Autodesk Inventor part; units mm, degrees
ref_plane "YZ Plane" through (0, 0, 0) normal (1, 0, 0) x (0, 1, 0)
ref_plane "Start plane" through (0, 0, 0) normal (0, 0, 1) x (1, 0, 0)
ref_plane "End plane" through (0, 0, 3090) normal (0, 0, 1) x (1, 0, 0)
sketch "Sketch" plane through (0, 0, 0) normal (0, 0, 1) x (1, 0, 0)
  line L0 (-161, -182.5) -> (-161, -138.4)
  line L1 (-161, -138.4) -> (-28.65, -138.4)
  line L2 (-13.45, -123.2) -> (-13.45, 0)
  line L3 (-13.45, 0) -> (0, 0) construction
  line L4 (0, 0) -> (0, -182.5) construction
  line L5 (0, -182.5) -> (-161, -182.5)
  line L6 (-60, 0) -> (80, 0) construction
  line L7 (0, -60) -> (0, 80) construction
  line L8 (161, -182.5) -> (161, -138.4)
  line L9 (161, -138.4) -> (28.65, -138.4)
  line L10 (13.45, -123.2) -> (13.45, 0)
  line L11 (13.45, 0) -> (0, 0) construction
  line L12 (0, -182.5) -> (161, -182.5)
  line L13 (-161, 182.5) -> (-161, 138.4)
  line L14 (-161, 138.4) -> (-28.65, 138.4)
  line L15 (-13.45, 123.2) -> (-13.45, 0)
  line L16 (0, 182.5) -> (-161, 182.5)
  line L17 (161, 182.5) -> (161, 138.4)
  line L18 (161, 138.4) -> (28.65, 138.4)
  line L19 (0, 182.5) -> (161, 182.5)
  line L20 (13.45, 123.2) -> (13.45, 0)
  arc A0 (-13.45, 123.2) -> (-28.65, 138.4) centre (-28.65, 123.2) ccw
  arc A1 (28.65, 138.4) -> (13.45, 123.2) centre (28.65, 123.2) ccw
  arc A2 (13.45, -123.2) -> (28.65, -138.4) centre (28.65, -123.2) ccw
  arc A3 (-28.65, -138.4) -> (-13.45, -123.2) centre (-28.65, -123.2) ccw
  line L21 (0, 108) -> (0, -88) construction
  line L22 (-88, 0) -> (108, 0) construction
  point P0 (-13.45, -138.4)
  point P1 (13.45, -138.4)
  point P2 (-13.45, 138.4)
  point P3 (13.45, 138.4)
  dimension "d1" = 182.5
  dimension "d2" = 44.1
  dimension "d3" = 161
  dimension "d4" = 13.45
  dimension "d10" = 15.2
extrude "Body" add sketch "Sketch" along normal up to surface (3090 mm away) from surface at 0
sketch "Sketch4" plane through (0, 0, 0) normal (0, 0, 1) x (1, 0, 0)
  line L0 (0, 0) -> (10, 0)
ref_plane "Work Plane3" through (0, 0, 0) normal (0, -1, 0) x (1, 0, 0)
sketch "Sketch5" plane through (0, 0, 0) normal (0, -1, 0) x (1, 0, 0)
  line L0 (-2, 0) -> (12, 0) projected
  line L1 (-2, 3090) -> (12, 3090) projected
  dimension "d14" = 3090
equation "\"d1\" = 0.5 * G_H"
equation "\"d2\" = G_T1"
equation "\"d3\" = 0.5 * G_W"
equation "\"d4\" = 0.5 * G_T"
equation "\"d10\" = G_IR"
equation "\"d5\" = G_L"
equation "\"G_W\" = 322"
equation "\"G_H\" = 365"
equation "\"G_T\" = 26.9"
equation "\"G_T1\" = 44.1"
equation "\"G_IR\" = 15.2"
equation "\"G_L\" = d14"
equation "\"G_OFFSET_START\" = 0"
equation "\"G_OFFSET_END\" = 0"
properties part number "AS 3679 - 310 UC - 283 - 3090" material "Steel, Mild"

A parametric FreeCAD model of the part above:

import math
import FreeCAD as App
import Part
import Sketcher

V = App.Vector

doc = App.newDocument("Part")
body = doc.addObject("PartDesign::Body", "Body")

# Sketch on XY plane
sketch1 = body.newObject("Sketcher::SketchObject", "Sketch")
sketch1.AttachmentSupport = (doc.getObject("XY_Plane"), [""])
sketch1.MapMode = "FlatFace"
sketch1.addGeometry(Part.LineSegment(V(-161, -138, 0), V(-161, -182, 0)), False)
sketch1.addGeometry(Part.LineSegment(V(-161, -182, 0), V(161, -182, 0)), False)
sketch1.addGeometry(Part.LineSegment(V(161, -182, 0), V(161, -138, 0)), False)
sketch1.addGeometry(Part.LineSegment(V(161, -138, 0), V(29, -138, 0)), False)
sketch1.addGeometry(Part.ArcOfCircle(Part.Circle(V(29, -123, 0), V(0, 0, 1), 15), math.radians(180), math.radians(270)), False)
sketch1.addGeometry(Part.LineSegment(V(13, -123, 0), V(13, 123, 0)), False)
sketch1.addGeometry(Part.ArcOfCircle(Part.Circle(V(29, 123, 0), V(0, 0, 1), 15), math.radians(90), math.radians(180)), False)
sketch1.addGeometry(Part.LineSegment(V(29, 138, 0), V(161, 138, 0)), False)
sketch1.addGeometry(Part.LineSegment(V(161, 138, 0), V(161, 182, 0)), False)
sketch1.addGeometry(Part.LineSegment(V(161, 182, 0), V(-161, 182, 0)), False)
sketch1.addGeometry(Part.LineSegment(V(-161, 182, 0), V(-161, 138, 0)), False)
sketch1.addGeometry(Part.LineSegment(V(-161, 138, 0), V(-29, 138, 0)), False)
sketch1.addGeometry(Part.ArcOfCircle(Part.Circle(V(-29, 123, 0), V(0, 0, 1), 15), math.radians(0), math.radians(90)), False)
sketch1.addGeometry(Part.LineSegment(V(-13, 123, 0), V(-13, -123, 0)), False)
sketch1.addGeometry(Part.ArcOfCircle(Part.Circle(V(-29, -123, 0), V(0, 0, 1), 15), math.radians(-90), math.radians(0)), False)
sketch1.addGeometry(Part.LineSegment(V(-29, -138, 0), V(-161, -138, 0)), False)
sketch1.addConstraint(Sketcher.Constraint("Coincident", 0, 2, 1, 1))
sketch1.addConstraint(Sketcher.Constraint("Coincident", 1, 2, 2, 1))
sketch1.addConstraint(Sketcher.Constraint("Coincident", 2, 2, 3, 1))
sketch1.addConstraint(Sketcher.Constraint("Tangent", 3, 2, 4, 2))
sketch1.addConstraint(Sketcher.Constraint("Tangent", 4, 1, 5, 1))
sketch1.addConstraint(Sketcher.Constraint("Tangent", 5, 2, 6, 2))
sketch1.addConstraint(Sketcher.Constraint("Tangent", 6, 1, 7, 1))
sketch1.addConstraint(Sketcher.Constraint("Coincident", 7, 2, 8, 1))
sketch1.addConstraint(Sketcher.Constraint("Coincident", 8, 2, 9, 1))
sketch1.addConstraint(Sketcher.Constraint("Coincident", 9, 2, 10, 1))
sketch1.addConstraint(Sketcher.Constraint("Coincident", 10, 2, 11, 1))
sketch1.addConstraint(Sketcher.Constraint("Tangent", 11, 2, 12, 2))
sketch1.addConstraint(Sketcher.Constraint("Tangent", 12, 1, 13, 1))
sketch1.addConstraint(Sketcher.Constraint("Tangent", 13, 2, 14, 2))
sketch1.addConstraint(Sketcher.Constraint("Tangent", 14, 1, 15, 1))
sketch1.addConstraint(Sketcher.Constraint("Coincident", 15, 2, 0, 1))
sketch1.addConstraint(Sketcher.Constraint("Vertical", 0))
sketch1.addConstraint(Sketcher.Constraint("Horizontal", 1))
sketch1.addConstraint(Sketcher.Constraint("Vertical", 2))
sketch1.addConstraint(Sketcher.Constraint("Horizontal", 3))
sketch1.addConstraint(Sketcher.Constraint("Vertical", 5))
sketch1.addConstraint(Sketcher.Constraint("Horizontal", 7))
sketch1.addConstraint(Sketcher.Constraint("Vertical", 8))
sketch1.addConstraint(Sketcher.Constraint("Horizontal", 9))
sketch1.addConstraint(Sketcher.Constraint("Vertical", 10))
sketch1.addConstraint(Sketcher.Constraint("Horizontal", 11))
sketch1.addConstraint(Sketcher.Constraint("Vertical", 13))
sketch1.addConstraint(Sketcher.Constraint("Horizontal", 15))
sketch1.addConstraint(Sketcher.Constraint("Equal", 4, 6))
sketch1.addConstraint(Sketcher.Constraint("Equal", 6, 12))
sketch1.addConstraint(Sketcher.Constraint("Equal", 12, 14))
sketch1.addConstraint(Sketcher.Constraint("Symmetric", 4, 3, 12, 3, -1, 1))
sketch1.addConstraint(Sketcher.Constraint("Symmetric", 0, 2, 8, 2, -1, 1))
sketch1.addConstraint(Sketcher.Constraint("Symmetric", 7, 2, 10, 2, -2))
sketch1.addConstraint(Sketcher.Constraint("Symmetric", 2, 2, 15, 2, -2))
sketch1.addConstraint(Sketcher.Constraint("Radius", 4, 15.2))
sketch1.addConstraint(Sketcher.Constraint("DistanceY", 0, 2, 0, 1, 44.1))
sketch1.addConstraint(Sketcher.Constraint("DistanceX", 0, 2, -1, 1, 161.0))
sketch1.addConstraint(Sketcher.Constraint("DistanceY", 0, 2, -1, 1, 182.5))
sketch1.addConstraint(Sketcher.Constraint("DistanceX", -1, 1, 4, 1, 13.45))
pad1 = body.newObject("PartDesign::Pad", "Pad")
pad1.Profile = sketch1
pad1.Length = 3090

doc.recompute()
